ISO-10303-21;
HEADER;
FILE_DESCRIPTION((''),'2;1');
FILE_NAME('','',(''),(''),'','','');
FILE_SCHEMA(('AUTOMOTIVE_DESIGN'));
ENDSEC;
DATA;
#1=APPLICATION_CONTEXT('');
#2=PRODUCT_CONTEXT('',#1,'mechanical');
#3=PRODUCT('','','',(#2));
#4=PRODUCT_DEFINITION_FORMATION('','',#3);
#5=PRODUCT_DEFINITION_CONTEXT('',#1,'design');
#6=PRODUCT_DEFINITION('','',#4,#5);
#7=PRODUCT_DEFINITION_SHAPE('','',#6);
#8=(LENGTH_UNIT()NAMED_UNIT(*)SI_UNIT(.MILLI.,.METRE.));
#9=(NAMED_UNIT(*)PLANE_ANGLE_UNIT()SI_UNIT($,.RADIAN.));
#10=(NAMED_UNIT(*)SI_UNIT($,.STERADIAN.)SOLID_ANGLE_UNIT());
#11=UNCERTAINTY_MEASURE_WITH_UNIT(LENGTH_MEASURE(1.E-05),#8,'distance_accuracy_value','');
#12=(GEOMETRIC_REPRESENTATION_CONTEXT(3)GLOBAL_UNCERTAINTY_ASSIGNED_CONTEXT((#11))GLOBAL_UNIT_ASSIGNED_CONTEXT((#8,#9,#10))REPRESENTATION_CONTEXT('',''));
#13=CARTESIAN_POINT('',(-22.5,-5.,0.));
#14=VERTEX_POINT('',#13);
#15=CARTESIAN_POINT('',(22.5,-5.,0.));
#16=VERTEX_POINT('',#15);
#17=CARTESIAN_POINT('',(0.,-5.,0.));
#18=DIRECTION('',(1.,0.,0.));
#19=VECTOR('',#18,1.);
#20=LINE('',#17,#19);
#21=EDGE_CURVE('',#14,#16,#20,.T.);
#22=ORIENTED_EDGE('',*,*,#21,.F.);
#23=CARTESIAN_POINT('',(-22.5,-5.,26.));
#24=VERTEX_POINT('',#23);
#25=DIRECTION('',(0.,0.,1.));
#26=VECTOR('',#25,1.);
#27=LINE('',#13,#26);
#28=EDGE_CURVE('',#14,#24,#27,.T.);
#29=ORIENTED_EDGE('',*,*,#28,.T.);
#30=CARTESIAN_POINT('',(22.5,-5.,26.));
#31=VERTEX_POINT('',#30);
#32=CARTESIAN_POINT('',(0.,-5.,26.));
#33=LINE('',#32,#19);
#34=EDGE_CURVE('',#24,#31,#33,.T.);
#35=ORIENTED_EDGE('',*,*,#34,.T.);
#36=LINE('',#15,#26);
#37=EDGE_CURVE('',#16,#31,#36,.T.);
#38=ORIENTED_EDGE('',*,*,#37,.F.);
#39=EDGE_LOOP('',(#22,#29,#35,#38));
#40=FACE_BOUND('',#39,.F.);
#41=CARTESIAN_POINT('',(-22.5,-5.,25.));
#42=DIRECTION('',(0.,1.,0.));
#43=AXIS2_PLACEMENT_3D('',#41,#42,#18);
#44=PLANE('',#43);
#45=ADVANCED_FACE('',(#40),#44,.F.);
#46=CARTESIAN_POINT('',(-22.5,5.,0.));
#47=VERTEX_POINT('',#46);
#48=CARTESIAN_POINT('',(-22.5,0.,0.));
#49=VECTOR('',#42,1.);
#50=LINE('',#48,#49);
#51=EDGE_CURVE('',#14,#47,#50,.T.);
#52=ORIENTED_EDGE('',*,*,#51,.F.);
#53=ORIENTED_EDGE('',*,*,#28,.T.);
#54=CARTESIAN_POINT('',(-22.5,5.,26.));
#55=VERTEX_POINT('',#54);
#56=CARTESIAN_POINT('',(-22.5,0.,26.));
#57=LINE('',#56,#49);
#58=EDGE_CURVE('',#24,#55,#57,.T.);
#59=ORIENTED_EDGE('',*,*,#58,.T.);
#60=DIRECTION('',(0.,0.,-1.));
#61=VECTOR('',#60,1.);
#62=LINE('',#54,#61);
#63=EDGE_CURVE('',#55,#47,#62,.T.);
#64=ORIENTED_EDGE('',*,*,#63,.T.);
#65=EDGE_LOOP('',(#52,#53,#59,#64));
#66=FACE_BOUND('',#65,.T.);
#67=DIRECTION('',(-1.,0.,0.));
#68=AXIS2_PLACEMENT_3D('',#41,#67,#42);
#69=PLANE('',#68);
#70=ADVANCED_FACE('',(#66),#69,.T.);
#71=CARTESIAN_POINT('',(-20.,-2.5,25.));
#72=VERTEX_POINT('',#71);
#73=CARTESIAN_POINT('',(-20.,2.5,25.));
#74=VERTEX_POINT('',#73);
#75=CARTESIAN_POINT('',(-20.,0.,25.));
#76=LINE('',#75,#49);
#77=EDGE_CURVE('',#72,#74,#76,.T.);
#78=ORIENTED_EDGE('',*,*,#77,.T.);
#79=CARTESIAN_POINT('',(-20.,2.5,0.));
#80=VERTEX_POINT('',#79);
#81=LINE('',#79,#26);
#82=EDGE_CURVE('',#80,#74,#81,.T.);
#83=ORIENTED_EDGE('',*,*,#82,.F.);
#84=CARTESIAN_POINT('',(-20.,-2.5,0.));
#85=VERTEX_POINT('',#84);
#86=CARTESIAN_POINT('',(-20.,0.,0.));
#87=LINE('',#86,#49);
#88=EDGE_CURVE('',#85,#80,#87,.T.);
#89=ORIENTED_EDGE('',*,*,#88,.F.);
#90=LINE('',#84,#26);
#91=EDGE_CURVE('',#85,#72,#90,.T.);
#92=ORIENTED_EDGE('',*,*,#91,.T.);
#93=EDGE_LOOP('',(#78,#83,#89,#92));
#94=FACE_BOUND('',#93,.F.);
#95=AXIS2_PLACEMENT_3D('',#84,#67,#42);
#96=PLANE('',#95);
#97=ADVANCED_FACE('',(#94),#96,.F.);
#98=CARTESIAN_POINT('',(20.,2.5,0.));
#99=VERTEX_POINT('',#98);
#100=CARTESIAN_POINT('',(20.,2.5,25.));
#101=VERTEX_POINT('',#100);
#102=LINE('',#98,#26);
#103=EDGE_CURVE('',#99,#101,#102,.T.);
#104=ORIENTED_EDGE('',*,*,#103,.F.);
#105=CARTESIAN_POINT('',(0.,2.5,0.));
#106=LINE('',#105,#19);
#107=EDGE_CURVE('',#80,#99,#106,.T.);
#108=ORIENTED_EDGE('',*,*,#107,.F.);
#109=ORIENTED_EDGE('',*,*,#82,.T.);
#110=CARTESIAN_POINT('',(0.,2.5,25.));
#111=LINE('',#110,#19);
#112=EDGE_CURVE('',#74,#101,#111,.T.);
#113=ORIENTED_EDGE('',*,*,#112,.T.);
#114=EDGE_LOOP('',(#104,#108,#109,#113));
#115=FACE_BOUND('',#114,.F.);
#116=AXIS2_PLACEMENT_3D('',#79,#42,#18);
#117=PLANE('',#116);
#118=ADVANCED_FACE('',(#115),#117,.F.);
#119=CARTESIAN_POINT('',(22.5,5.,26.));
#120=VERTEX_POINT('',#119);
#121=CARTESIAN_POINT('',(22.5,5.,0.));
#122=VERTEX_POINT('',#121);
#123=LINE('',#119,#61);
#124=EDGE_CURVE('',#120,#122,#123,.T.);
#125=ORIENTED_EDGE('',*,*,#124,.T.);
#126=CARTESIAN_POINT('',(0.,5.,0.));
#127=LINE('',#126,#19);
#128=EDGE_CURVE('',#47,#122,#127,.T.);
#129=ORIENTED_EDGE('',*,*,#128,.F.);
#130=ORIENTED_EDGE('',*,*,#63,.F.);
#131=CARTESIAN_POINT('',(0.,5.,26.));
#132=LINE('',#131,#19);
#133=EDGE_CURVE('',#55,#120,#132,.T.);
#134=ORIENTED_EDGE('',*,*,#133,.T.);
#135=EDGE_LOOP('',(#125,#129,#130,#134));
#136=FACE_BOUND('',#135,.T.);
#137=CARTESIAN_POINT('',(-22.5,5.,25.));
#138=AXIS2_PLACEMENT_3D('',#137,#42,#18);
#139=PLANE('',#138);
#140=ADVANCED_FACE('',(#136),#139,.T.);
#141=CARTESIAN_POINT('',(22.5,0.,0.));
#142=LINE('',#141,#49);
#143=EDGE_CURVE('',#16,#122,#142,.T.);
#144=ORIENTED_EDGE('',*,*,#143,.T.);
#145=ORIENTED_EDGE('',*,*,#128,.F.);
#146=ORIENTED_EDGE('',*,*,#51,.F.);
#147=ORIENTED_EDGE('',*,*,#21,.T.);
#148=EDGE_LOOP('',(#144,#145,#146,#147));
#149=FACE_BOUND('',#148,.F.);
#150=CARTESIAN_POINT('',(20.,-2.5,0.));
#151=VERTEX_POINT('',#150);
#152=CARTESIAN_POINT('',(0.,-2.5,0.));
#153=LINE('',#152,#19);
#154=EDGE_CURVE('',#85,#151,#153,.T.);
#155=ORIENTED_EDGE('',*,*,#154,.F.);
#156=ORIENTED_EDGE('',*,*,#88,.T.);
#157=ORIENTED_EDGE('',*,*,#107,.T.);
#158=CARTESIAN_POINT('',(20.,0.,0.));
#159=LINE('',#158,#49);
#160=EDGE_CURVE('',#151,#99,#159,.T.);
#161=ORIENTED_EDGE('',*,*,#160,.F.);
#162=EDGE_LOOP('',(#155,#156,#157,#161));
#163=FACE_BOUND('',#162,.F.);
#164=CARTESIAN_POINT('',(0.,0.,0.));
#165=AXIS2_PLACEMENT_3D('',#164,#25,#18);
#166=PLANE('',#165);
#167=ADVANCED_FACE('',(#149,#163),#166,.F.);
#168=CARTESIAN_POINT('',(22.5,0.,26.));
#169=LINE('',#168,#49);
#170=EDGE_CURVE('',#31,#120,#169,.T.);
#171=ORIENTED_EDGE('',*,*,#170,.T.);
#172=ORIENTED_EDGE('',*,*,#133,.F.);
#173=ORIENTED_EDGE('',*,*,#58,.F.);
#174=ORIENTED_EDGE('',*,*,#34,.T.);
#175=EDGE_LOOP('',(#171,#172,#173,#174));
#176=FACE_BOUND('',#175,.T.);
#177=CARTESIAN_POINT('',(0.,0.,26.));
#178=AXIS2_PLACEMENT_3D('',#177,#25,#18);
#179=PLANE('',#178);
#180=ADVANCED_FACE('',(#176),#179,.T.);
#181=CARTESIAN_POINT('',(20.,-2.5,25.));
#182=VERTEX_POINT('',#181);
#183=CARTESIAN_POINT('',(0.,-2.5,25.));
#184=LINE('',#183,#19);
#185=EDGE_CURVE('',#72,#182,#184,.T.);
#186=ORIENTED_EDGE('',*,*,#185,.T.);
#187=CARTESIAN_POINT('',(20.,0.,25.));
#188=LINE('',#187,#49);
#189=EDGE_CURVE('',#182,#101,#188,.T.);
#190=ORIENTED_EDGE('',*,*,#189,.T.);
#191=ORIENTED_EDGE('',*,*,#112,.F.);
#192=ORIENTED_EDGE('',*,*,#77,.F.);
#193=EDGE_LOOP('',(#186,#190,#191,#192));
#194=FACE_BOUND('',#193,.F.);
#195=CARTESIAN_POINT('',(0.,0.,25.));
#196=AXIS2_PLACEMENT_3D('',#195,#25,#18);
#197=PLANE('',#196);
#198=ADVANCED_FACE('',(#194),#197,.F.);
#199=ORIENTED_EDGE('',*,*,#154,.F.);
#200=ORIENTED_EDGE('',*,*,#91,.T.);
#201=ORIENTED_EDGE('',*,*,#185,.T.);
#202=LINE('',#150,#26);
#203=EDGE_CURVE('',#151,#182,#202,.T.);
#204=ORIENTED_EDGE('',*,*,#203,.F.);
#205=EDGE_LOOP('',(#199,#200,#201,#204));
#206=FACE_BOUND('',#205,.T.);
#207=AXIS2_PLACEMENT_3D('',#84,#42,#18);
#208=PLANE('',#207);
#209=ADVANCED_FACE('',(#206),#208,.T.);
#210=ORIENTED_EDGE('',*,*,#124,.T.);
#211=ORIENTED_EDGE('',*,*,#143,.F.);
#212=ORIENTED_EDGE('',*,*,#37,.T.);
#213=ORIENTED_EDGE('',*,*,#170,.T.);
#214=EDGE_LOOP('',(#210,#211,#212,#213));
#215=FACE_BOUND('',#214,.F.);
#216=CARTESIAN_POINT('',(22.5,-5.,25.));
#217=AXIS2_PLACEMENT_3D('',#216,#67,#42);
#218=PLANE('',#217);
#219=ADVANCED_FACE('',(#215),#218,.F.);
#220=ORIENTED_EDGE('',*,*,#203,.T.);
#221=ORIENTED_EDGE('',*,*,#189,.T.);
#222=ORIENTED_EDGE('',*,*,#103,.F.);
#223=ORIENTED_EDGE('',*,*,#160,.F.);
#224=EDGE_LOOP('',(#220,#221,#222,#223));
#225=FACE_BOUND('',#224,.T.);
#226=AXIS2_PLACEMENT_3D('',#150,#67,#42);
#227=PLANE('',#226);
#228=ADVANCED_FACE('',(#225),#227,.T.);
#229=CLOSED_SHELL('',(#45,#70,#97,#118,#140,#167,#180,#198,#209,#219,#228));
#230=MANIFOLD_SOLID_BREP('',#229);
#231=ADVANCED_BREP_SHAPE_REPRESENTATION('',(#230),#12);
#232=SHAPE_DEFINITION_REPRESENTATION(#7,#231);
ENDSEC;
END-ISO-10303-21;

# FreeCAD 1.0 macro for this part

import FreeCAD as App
import Part
import Sketcher

V = App.Vector
Q = App.Units.Quantity


def add_polygon(sketch, points):
    """Adds a closed chain of lines whose ends are joined by coincident constraints."""
    first, n = sketch.GeometryCount, len(points)
    for a, b in zip(points, points[1:] + points[:1]):
        sketch.addGeometry(Part.LineSegment(App.Vector(*a, 0), App.Vector(*b, 0)), False)
    for i in range(n):
        sketch.addConstraint(Sketcher.Constraint("Coincident", first + i, 2, first + (i + 1) % n, 1))

doc = App.newDocument("Part")
body = doc.addObject("PartDesign::Body", "Body")

# Sketch on XY plane
sketch1 = doc.addObject("Sketcher::SketchObject", "Sketch")
body.addObject(sketch1)
sketch1.AttachmentSupport = (doc.XY_Plane, [""])
sketch1.MapMode = "FlatFace"
add_polygon(sketch1, [(-22, 5), (-22, -5), (22, -5), (22, 5)])  # lines 0-3
add_polygon(sketch1, [(20, -2), (-20, -2), (-20, 2), (20, 2)])  # lines 4-7
sketch1.addConstraint([
    Sketcher.Constraint("Vertical", 0),
    Sketcher.Constraint("Horizontal", 1),
    Sketcher.Constraint("Vertical", 2),
    Sketcher.Constraint("Horizontal", 3),
    Sketcher.Constraint("Horizontal", 4),
    Sketcher.Constraint("Vertical", 5),
    Sketcher.Constraint("Horizontal", 6),
    Sketcher.Constraint("Vertical", 7),
    Sketcher.Constraint("Symmetric", 0, 2, 2, 2, -1, 1),
    Sketcher.Constraint("Symmetric", 4, 2, 6, 2, -1, 1),
    Sketcher.Constraint("DistanceX", 1, 1, 1, 2, Q("45 mm")),
    Sketcher.Constraint("DistanceX", 4, 2, 4, 1, Q("40 mm")),
    Sketcher.Constraint("DistanceY", 0, 2, 0, 1, Q("10 mm")),
    Sketcher.Constraint("DistanceY", 5, 1, 5, 2, Q("5 mm")),
])
pad1 = doc.addObject("PartDesign::Pad", "Pad")
body.addObject(pad1)
pad1.Profile = sketch1
pad1.Length = 25

# Sketch on XY plane
sketch2 = doc.addObject("Sketcher::SketchObject", "Sketch001")
body.addObject(sketch2)
sketch2.AttachmentSupport = (doc.XY_Plane, [""])
sketch2.MapMode = "FlatFace"
sketch2.AttachmentOffset = App.Placement(V(0, 0, 25), App.Rotation())
add_polygon(sketch2, [(-22, 5), (-22, -5), (22, -5), (22, 5)])  # lines 0-3
sketch2.addConstraint([
    Sketcher.Constraint("Vertical", 0),
    Sketcher.Constraint("Horizontal", 1),
    Sketcher.Constraint("Vertical", 2),
    Sketcher.Constraint("Horizontal", 3),
    Sketcher.Constraint("Symmetric", 0, 2, 2, 2, -1, 1),
    Sketcher.Constraint("DistanceX", 1, 1, 1, 2, Q("45 mm")),
    Sketcher.Constraint("DistanceY", 0, 2, 0, 1, Q("10 mm")),
])
pad2 = doc.addObject("PartDesign::Pad", "Pad001")
body.addObject(pad2)
pad2.Profile = sketch2
pad2.Length = 1

doc.recompute()
